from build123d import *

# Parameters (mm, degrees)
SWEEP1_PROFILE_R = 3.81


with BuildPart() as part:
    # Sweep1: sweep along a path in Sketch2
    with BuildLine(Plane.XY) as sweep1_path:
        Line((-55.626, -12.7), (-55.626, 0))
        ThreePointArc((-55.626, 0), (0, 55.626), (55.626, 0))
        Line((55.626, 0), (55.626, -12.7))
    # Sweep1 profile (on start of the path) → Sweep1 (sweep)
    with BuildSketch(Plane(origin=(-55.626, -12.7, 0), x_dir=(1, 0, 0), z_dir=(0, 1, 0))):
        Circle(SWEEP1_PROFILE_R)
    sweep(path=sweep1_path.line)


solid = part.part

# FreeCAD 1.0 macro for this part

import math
import FreeCAD as App
import Part
import Sketcher
Q = App.Units.Quantity

doc = App.newDocument("Part")
body = doc.addObject("PartDesign::Body", "Body")

# Sketch on XZ plane
sketch1 = body.newObject("Sketcher::SketchObject", "Sketch")
sketch1.AttachmentSupport = (doc.getObject("XZ_Plane"), [""])
sketch1.MapMode = "FlatFace"
sketch1.AttachmentOffset = App.Placement(App.Vector(0, 0, 0.5 * 25.4), App.Rotation())
sketch1.addGeometry(Part.Circle(App.Vector(-55.6, 0, 0), App.Vector(0, 0, 1), 3.8), False)
sketch1.addConstraint([
    Sketcher.Constraint("PointOnObject", 0, 3, -1),
    Sketcher.Constraint("Diameter", 0, Q("0.3 in")),
    Sketcher.Constraint("DistanceX", 0, 3, -1, 1, Q("2.19 in")),
])

# Sketch on XY plane
sketch2 = body.newObject("Sketcher::SketchObject", "Sketch001")
sketch2.AttachmentSupport = (doc.getObject("XY_Plane"), [""])
sketch2.MapMode = "FlatFace"
sketch2.addGeometry([
    Part.LineSegment(App.Vector(-56, -13, 0), App.Vector(-56, 0, 0)),
    Part.ArcOfCircle(Part.Circle(App.Vector(0, 0, 0), App.Vector(0, 0, 1), 56), math.radians(0), math.radians(180)),
    Part.LineSegment(App.Vector(56, 0, 0), App.Vector(56, -13, 0)),
], False)
sketch2.addConstraint([
    Sketcher.Constraint("Tangent", 0, 2, 1, 2),
    Sketcher.Constraint("Tangent", 1, 1, 2, 1),
    Sketcher.Constraint("Vertical", 0),
    Sketcher.Constraint("Vertical", 2),
    Sketcher.Constraint("Coincident", 1, 3, -1, 1),
    Sketcher.Constraint("Horizontal", 0, 1, 2, 2),
    Sketcher.Constraint("Radius", 1, Q("2.19 in")),
    Sketcher.Constraint("DistanceY", 0, 1, 0, 2, Q("0.5 in")),
])
doc.recompute()

additivepipe = body.newObject("PartDesign::AdditivePipe", "AdditivePipe")
additivepipe.Profile = sketch1
additivepipe.Spine = (sketch2, ["Edge1", "Edge2", "Edge3"])

doc.recompute()
